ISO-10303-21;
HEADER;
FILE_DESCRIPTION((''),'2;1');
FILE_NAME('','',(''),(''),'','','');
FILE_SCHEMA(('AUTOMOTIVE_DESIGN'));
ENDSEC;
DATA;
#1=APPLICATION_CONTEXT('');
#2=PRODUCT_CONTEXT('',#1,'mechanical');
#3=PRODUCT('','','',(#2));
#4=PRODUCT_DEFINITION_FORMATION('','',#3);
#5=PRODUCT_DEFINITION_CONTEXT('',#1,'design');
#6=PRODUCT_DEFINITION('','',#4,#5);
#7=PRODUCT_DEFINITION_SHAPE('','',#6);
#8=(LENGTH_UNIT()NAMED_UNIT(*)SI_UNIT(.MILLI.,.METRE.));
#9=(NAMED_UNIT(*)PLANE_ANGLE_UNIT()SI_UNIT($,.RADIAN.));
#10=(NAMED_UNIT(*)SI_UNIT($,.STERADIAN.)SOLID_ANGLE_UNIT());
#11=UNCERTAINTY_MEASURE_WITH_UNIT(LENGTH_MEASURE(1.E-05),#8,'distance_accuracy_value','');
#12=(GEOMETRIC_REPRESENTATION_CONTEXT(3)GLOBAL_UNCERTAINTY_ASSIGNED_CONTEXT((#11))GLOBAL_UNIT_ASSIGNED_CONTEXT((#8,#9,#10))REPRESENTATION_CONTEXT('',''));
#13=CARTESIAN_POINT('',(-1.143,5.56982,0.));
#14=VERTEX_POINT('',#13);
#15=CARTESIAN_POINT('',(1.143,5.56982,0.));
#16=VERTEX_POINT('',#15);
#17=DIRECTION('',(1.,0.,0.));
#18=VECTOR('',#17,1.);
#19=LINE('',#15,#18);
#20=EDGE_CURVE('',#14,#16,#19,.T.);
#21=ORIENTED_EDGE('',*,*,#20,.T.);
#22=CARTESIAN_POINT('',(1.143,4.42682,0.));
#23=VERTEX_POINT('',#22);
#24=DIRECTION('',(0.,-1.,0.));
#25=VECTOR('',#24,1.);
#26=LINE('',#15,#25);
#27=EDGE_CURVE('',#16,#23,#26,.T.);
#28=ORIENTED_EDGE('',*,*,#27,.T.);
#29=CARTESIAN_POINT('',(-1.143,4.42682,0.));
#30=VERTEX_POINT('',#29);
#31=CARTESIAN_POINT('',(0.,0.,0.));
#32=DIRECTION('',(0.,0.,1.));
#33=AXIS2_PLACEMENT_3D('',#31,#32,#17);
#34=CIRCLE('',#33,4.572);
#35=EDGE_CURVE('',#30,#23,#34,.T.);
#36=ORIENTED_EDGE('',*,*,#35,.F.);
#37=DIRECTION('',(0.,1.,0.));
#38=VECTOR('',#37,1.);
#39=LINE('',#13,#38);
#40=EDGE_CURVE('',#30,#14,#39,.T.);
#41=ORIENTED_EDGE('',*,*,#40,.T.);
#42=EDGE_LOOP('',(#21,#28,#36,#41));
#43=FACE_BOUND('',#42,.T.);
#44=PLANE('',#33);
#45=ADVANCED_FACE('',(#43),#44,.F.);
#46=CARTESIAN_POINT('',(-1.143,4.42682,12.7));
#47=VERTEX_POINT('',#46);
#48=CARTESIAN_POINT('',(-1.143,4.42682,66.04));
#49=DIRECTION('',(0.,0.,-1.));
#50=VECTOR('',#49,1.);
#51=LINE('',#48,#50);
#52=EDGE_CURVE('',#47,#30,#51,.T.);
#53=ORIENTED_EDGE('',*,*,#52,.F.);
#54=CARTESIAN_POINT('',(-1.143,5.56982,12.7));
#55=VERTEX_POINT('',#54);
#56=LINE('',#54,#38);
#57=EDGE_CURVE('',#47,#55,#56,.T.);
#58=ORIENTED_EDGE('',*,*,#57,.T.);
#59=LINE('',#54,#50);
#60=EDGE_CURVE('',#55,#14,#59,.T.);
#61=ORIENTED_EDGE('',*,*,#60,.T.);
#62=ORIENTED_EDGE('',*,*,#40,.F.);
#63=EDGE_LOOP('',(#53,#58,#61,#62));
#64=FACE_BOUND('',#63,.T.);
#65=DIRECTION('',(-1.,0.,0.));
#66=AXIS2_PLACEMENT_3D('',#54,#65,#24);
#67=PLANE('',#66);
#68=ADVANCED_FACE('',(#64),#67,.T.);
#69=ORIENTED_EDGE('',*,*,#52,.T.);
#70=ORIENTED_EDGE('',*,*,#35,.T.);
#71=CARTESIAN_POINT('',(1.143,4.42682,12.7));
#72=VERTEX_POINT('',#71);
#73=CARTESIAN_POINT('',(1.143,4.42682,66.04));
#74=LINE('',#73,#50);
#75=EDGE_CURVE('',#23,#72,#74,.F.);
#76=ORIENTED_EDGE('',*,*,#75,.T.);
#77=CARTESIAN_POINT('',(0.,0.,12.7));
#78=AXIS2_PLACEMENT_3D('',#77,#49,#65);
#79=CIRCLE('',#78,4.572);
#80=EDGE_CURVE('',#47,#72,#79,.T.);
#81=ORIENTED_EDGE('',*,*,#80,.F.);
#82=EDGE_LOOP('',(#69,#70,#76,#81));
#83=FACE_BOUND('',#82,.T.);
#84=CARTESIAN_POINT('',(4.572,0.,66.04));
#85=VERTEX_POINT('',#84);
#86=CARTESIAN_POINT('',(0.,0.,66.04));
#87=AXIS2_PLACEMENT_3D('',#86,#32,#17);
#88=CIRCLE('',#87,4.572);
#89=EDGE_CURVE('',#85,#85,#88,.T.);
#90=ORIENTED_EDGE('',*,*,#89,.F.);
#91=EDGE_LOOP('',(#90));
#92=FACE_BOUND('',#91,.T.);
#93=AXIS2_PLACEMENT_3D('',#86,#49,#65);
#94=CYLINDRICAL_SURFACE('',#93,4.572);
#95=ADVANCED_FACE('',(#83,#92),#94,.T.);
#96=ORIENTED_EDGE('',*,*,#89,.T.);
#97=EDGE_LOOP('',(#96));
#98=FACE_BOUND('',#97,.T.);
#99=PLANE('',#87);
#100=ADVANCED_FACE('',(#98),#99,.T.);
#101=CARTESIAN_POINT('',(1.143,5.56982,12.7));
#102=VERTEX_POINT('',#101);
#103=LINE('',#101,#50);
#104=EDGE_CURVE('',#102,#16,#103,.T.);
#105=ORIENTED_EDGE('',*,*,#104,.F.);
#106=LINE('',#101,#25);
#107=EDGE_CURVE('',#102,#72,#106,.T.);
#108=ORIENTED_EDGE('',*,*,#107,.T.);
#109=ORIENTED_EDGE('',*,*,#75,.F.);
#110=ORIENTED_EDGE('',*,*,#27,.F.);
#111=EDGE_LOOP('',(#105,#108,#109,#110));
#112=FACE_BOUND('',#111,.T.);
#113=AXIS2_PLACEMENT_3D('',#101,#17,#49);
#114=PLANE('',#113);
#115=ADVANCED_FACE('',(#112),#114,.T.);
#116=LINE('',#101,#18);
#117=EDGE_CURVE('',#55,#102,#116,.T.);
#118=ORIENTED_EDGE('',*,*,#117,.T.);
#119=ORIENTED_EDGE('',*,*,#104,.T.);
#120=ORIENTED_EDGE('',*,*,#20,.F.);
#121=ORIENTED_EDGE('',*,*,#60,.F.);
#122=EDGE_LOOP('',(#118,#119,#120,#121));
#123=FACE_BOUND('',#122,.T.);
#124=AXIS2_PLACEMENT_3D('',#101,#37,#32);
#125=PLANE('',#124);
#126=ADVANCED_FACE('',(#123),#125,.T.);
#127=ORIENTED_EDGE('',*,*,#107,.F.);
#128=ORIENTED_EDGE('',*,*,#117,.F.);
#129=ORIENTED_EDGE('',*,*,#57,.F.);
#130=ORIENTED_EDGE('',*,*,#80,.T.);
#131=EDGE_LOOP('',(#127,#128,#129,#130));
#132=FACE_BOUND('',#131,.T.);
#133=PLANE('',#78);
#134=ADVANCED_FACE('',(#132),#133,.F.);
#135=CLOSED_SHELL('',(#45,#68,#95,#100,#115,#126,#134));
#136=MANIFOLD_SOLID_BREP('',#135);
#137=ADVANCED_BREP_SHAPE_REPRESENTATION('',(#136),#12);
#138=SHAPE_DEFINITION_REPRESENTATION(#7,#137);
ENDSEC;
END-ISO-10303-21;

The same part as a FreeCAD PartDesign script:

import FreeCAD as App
import Part
import Sketcher
Q = App.Units.Quantity


def add_polygon(sketch, points):
    """Adds a closed chain of lines whose ends are joined by coincident constraints."""
    first, n = sketch.GeometryCount, len(points)
    for a, b in zip(points, points[1:] + points[:1]):
        sketch.addGeometry(Part.LineSegment(App.Vector(*a, 0), App.Vector(*b, 0)), False)
    for i in range(n):
        sketch.addConstraint(Sketcher.Constraint("Coincident", first + i, 2, first + (i + 1) % n, 1))

doc = App.newDocument("Part")
body = doc.addObject("PartDesign::Body", "Body")

sketch1 = body.newObject("Sketcher::SketchObject", "Sketch")
sketch1.AttachmentSupport = (doc.getObject("XY_Plane"), [""])
sketch1.MapMode = "FlatFace"
sketch1.addGeometry(Part.Circle(App.Vector(0, 0, 0), App.Vector(0, 0, 1), 4.6), False)
sketch1.addConstraint([
    Sketcher.Constraint("Coincident", 0, 3, -1, 1),
    Sketcher.Constraint("Diameter", 0, Q("0.36 in")),
])
pad1 = body.newObject("PartDesign::Pad", "Pad")
pad1.Profile = sketch1
pad1.Length = Q("2.6 in")

sketch2 = body.newObject("Sketcher::SketchObject", "Sketch001")
sketch2.AttachmentSupport = (doc.getObject("XY_Plane"), [""])
sketch2.MapMode = "FlatFace"
add_polygon(sketch2, [(1.1, 5.6), (1.1, 3.3), (-1.1, 3.3), (-1.1, 5.6)])
sketch2.addConstraint([
    Sketcher.Constraint("Vertical", 0),
    Sketcher.Constraint("Horizontal", 1),
    Sketcher.Constraint("Vertical", 2),
    Sketcher.Constraint("Horizontal", 3),
    Sketcher.Constraint("Equal", 3, 0),
    Sketcher.Constraint("DistanceX", 1, 2, 1, 1, Q("0.09 in")),
    Sketcher.Constraint("DistanceX", -1, 1, 0, 2, Q("0.045 in")),
    Sketcher.Constraint("DistanceY", -1, 1, 0, 2, 3.28382),
])
pad2 = body.newObject("PartDesign::Pad", "Pad001")
pad2.Profile = sketch2
pad2.Length = Q("0.5 in")

doc.recompute()
